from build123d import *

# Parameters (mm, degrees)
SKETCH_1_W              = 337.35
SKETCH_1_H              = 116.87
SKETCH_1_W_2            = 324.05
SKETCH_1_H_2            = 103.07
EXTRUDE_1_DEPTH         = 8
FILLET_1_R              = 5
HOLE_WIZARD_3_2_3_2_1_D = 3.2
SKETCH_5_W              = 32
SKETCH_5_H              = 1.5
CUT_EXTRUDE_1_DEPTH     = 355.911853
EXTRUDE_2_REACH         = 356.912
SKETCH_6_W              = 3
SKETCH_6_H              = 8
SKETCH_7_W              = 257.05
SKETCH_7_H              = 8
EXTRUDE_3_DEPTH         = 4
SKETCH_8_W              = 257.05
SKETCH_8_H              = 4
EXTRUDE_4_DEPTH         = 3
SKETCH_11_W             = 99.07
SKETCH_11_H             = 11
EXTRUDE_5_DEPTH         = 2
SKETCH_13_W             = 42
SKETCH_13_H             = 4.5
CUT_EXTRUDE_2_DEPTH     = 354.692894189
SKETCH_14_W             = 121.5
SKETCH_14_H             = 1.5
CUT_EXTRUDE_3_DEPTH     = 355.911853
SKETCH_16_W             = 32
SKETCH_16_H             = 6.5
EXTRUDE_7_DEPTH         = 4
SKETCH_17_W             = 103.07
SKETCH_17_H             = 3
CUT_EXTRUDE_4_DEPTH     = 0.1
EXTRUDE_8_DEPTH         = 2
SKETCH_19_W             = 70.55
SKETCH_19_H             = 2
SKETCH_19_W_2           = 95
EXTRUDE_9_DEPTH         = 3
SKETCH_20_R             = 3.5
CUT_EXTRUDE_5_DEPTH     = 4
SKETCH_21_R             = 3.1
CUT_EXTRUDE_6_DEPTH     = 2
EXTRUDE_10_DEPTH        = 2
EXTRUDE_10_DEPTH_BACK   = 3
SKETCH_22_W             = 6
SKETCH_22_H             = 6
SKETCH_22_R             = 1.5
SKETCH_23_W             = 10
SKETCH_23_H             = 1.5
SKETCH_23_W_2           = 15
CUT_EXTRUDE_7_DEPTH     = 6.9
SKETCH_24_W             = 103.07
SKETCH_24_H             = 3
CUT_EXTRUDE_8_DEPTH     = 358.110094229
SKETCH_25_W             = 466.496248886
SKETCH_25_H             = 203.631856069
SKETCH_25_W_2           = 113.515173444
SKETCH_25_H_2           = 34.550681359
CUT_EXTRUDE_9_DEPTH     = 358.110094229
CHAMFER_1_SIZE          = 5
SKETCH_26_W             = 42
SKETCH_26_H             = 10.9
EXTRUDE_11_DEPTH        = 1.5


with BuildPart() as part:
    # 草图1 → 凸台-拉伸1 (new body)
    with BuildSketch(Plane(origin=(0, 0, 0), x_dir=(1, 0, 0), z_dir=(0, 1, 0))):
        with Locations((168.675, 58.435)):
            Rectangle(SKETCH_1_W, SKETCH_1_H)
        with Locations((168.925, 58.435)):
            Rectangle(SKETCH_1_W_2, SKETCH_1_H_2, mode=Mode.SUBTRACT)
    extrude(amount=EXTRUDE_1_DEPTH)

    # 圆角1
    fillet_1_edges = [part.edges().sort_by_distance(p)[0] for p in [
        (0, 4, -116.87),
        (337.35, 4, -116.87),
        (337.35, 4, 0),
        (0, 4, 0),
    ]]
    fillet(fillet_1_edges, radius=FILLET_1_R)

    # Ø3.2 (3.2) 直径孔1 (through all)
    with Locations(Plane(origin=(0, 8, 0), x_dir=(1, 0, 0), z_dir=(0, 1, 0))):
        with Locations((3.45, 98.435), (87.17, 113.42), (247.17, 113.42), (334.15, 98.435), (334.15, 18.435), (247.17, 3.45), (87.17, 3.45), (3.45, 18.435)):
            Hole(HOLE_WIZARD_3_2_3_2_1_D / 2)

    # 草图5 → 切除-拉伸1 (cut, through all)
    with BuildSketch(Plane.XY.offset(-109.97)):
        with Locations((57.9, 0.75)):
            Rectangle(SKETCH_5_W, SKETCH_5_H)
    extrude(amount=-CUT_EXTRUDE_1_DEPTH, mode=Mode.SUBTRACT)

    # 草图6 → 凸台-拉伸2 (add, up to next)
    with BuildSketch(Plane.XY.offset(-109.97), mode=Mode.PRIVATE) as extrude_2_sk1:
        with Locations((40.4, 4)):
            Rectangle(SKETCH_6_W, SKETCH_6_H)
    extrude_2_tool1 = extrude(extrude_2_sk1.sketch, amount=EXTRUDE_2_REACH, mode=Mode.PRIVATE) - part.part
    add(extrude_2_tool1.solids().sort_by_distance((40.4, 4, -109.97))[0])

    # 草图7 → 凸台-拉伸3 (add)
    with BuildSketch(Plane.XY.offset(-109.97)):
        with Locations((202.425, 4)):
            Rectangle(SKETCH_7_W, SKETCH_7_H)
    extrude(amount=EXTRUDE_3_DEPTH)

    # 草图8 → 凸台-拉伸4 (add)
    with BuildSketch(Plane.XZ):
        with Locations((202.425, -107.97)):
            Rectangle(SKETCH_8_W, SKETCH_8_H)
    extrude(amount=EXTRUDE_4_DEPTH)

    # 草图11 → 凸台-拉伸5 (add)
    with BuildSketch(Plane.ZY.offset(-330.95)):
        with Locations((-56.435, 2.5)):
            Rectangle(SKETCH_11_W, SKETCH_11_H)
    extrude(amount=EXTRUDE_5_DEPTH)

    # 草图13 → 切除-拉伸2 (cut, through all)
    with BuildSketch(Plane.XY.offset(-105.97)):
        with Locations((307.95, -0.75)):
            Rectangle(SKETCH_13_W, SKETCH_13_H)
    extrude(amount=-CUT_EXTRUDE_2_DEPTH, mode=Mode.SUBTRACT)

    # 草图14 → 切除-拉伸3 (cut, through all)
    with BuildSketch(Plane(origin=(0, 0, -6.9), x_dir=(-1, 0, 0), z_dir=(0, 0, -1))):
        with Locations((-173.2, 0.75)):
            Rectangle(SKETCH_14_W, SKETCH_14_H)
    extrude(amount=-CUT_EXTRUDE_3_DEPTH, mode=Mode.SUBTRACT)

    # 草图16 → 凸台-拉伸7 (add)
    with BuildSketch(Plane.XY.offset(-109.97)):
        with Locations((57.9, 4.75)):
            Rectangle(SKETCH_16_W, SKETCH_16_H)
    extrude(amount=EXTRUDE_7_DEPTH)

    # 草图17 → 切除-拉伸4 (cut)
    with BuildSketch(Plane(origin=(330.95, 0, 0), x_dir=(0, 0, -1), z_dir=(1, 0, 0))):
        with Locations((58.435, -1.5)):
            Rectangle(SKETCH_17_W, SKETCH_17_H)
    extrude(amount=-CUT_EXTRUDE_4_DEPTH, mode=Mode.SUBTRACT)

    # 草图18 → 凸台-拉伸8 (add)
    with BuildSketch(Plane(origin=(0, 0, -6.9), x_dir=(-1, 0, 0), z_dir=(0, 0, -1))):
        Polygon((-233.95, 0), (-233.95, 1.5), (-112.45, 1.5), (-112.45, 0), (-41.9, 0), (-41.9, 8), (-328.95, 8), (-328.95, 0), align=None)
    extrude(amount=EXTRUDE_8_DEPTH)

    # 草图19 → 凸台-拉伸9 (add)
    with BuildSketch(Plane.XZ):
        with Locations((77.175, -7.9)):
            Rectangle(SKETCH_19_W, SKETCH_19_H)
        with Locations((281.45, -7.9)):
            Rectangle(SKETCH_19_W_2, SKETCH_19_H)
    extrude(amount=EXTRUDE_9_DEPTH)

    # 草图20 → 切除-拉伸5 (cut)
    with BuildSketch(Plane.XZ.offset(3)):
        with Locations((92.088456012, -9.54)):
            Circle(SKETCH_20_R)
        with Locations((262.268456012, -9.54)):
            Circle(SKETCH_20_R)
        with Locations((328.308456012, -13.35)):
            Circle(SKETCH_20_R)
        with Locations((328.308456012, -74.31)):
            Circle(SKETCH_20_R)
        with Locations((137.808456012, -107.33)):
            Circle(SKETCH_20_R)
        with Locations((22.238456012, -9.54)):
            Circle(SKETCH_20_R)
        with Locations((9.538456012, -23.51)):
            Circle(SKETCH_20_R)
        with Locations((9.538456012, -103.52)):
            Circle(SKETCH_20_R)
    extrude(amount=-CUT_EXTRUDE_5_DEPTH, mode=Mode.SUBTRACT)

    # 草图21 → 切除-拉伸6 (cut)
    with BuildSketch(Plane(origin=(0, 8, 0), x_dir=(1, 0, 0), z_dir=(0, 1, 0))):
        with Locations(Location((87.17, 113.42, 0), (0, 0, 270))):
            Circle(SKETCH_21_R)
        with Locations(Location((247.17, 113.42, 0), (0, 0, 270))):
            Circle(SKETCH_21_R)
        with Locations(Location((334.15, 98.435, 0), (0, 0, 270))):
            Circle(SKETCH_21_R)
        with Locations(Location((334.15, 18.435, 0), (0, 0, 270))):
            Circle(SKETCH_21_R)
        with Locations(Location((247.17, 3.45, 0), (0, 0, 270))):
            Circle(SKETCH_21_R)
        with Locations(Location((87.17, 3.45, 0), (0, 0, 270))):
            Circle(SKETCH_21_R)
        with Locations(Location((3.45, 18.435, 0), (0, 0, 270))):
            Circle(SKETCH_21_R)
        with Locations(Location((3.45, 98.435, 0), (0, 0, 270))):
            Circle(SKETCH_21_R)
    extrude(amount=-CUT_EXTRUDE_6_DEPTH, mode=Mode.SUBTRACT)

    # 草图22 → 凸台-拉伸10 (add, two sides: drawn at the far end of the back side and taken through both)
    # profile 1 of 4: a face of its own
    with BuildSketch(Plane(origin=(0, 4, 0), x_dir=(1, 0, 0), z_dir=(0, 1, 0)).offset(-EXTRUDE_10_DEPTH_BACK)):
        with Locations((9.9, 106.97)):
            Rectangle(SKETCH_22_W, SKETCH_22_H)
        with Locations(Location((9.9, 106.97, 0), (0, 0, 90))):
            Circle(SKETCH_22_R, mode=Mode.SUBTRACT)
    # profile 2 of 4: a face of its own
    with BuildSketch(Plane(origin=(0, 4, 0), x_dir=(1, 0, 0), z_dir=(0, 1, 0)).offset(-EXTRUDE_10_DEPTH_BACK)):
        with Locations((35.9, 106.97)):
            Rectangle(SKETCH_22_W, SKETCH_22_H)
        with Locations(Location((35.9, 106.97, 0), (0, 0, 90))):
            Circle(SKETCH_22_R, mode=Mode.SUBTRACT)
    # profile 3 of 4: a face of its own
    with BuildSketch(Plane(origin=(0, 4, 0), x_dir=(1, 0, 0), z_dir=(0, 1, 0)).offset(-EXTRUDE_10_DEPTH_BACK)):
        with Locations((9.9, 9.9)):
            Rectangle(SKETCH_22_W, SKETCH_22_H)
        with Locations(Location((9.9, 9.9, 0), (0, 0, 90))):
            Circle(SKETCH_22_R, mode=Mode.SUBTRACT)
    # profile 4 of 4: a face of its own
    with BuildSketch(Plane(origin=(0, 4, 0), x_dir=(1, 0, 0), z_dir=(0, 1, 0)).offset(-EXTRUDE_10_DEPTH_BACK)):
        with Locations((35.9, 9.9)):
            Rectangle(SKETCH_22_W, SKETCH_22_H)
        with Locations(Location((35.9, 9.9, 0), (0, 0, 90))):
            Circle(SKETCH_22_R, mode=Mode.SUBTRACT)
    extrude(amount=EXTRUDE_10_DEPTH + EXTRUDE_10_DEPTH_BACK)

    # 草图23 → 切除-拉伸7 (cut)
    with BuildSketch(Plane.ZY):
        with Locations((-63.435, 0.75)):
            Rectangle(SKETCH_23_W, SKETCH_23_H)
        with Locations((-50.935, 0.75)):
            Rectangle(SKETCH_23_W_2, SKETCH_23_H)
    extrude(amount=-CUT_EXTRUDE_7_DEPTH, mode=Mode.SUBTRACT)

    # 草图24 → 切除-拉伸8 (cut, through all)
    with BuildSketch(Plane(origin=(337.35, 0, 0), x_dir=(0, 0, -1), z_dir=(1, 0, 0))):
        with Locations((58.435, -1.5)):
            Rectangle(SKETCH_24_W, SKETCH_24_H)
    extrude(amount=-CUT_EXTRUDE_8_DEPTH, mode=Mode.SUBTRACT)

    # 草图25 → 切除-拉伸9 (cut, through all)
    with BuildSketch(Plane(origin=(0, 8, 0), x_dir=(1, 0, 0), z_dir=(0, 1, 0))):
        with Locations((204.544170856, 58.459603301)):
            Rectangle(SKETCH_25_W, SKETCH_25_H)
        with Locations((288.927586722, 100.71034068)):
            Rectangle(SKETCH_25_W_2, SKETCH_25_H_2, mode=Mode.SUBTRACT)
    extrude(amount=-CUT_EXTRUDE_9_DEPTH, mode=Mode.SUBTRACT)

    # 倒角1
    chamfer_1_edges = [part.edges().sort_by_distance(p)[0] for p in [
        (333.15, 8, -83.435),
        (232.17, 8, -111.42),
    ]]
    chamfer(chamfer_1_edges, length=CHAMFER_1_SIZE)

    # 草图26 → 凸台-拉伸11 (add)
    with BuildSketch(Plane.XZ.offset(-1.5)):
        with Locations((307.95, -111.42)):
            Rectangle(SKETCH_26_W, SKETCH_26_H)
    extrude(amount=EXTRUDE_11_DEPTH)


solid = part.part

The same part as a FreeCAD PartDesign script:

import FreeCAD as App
import Part
import Sketcher


def edges_at(feature, points):
    """Names of the edges that pass closest to the given points."""
    edges = feature.Shape.Edges
    near = lambda p: min(range(len(edges)), key=lambda i: edges[i].distToShape(Part.Vertex(*p))[0])
    return sorted({f"Edge{near(p) + 1}" for p in points})


def add_polygon(sketch, points):
    """Adds a closed chain of lines whose ends are joined by coincident constraints."""
    first, n = sketch.GeometryCount, len(points)
    for a, b in zip(points, points[1:] + points[:1]):
        sketch.addGeometry(Part.LineSegment(App.Vector(*a, 0), App.Vector(*b, 0)), False)
    for i in range(n):
        sketch.addConstraint(Sketcher.Constraint("Coincident", first + i, 2, first + (i + 1) % n, 1))

doc = App.newDocument("Part")
body = doc.addObject("PartDesign::Body", "Body")

# Sketch on XZ plane
sketch1 = body.newObject("Sketcher::SketchObject", "Sketch")
sketch1.AttachmentSupport = (doc.getObject("XZ_Plane"), [""])
sketch1.MapMode = "FlatFace"
add_polygon(sketch1, [(0, -117), (0, 0), (337, 0), (337, -117)])  # lines 0-3
add_polygon(sketch1, [(331, -7), (7, -7), (7, -110), (331, -110)])  # lines 4-7
sketch1.addConstraint([
    Sketcher.Constraint("Vertical", 0),
    Sketcher.Constraint("Horizontal", 1),
    Sketcher.Constraint("Vertical", 2),
    Sketcher.Constraint("Horizontal", 3),
    Sketcher.Constraint("Horizontal", 4),
    Sketcher.Constraint("Vertical", 5),
    Sketcher.Constraint("Horizontal", 6),
    Sketcher.Constraint("Vertical", 7),
    Sketcher.Constraint("Coincident", 0, 2, -1, 1),
    Sketcher.Constraint("DistanceX", 1, 1, 1, 2, 337.35),
    Sketcher.Constraint("DistanceX", 4, 2, 4, 1, 324.05),
    Sketcher.Constraint("DistanceY", 0, 1, 0, 2, 116.87),
    Sketcher.Constraint("DistanceY", 5, 2, 5, 1, 103.07),
    Sketcher.Constraint("DistanceX", -1, 1, 4, 2, 6.9),
    Sketcher.Constraint("DistanceY", 4, 2, -1, 1, 6.9),
])
pad1 = body.newObject("PartDesign::Pad", "Pad")
pad1.Profile = sketch1
pad1.Length = 8
pad1.Reversed = True
doc.recompute()

fillet = body.newObject("PartDesign::Fillet", "Fillet")
fillet.Base = (pad1, edges_at(pad1, [
    (0, 4, -116.87),
    (337.35, 4, -116.87),
    (337.35, 4, 0),
    (0, 4, 0),
]))
fillet.Radius = 5

# Sketch on XZ plane
sketch2 = body.newObject("Sketcher::SketchObject", "Sketch001")
sketch2.AttachmentSupport = (doc.getObject("XZ_Plane"), [""])
sketch2.MapMode = "FlatFace"
sketch2.AttachmentOffset = App.Placement(App.Vector(0, 0, -8), App.Rotation())
sketch2.addGeometry([
    Part.Circle(App.Vector(3.5, -98.4, 0), App.Vector(0, 0, 1), 1.6),  # 0
    Part.Circle(App.Vector(87.2, -113.4, 0), App.Vector(0, 0, 1), 1.6),  # 1
    Part.Circle(App.Vector(247.2, -113.4, 0), App.Vector(0, 0, 1), 1.6),  # 2
    Part.Circle(App.Vector(334.1, -98.4, 0), App.Vector(0, 0, 1), 1.6),  # 3
    Part.Circle(App.Vector(334.1, -18.4, 0), App.Vector(0, 0, 1), 1.6),  # 4
    Part.Circle(App.Vector(247.2, -3.5, 0), App.Vector(0, 0, 1), 1.6),  # 5
    Part.Circle(App.Vector(87.2, -3.5, 0), App.Vector(0, 0, 1), 1.6),  # 6
    Part.Circle(App.Vector(3.5, -18.4, 0), App.Vector(0, 0, 1), 1.6),  # 7
], False)
sketch2.addConstraint([
    Sketcher.Constraint("Equal", 0, 1),
    Sketcher.Constraint("Equal", 1, 2),
    Sketcher.Constraint("Equal", 2, 3),
    Sketcher.Constraint("Equal", 3, 4),
    Sketcher.Constraint("Equal", 4, 5),
    Sketcher.Constraint("Equal", 5, 6),
    Sketcher.Constraint("Equal", 6, 7),
    Sketcher.Constraint("Horizontal", 1, 3, 2, 3),
    Sketcher.Constraint("Horizontal", 0, 3, 3, 3),
    Sketcher.Constraint("Horizontal", 5, 3, 6, 3),
    Sketcher.Constraint("Horizontal", 4, 3, 7, 3),
    Sketcher.Constraint("Vertical", 3, 3, 4, 3),
    Sketcher.Constraint("Vertical", 2, 3, 5, 3),
    Sketcher.Constraint("Vertical", 1, 3, 6, 3),
    Sketcher.Constraint("Vertical", 0, 3, 7, 3),
    Sketcher.Constraint("Diameter", 0, 3.2),
    Sketcher.Constraint("DistanceX", 1, 3, 2, 3, 160.0),
    Sketcher.Constraint("DistanceY", 3, 3, 4, 3, 80.0),
    Sketcher.Constraint("DistanceX", 0, 3, 3, 3, 330.7),
    Sketcher.Constraint("DistanceX", -1, 1, 0, 3, 3.45),
    Sketcher.Constraint("DistanceX", -1, 1, 1, 3, 87.17),
    Sketcher.Constraint("DistanceY", 1, 3, -1, 1, 113.42),
    Sketcher.Constraint("DistanceY", 5, 3, -1, 1, 3.45),
    Sketcher.Constraint("DistanceY", 0, 3, -1, 1, 98.435),
])
doc.recompute()
hole = body.newObject("PartDesign::Hole", "Hole")
hole.Profile = sketch2
hole.ThreadType = "None"
hole.Diameter = 3.2
hole.DepthType = "ThroughAll"
hole.Reversed = True

# Sketch on XY plane
sketch3 = body.newObject("Sketcher::SketchObject", "Sketch002")
sketch3.AttachmentSupport = (doc.getObject("XY_Plane"), [""])
sketch3.MapMode = "FlatFace"
sketch3.AttachmentOffset = App.Placement(App.Vector(0, 0, -109.97), App.Rotation())
add_polygon(sketch3, [(41.9, 1.5), (41.9, 0), (73.9, 0), (73.9, 1.5)])  # lines 0-3
sketch3.addConstraint([
    Sketcher.Constraint("Vertical", 0),
    Sketcher.Constraint("Horizontal", 1),
    Sketcher.Constraint("Vertical", 2),
    Sketcher.Constraint("Horizontal", 3),
    Sketcher.Constraint("PointOnObject", 0, 2, -1),
    Sketcher.Constraint("DistanceX", 1, 1, 1, 2, 32.0),
    Sketcher.Constraint("DistanceY", 0, 2, 0, 1, 1.5),
    Sketcher.Constraint("DistanceX", -1, 1, 0, 2, 41.9),
])
pocket1 = body.newObject("PartDesign::Pocket", "Pocket")
pocket1.Profile = sketch3
pocket1.Type = "ThroughAll"

# Sketch on XY plane
sketch4 = body.newObject("Sketcher::SketchObject", "Sketch003")
sketch4.AttachmentSupport = (doc.getObject("XY_Plane"), [""])
sketch4.MapMode = "FlatFace"
sketch4.AttachmentOffset = App.Placement(App.Vector(0, 0, -109.97), App.Rotation())
add_polygon(sketch4, [(38.9, 8), (38.9, 0), (41.9, 0), (41.9, 8)])  # lines 0-3
sketch4.addConstraint([
    Sketcher.Constraint("Vertical", 0),
    Sketcher.Constraint("Horizontal", 1),
    Sketcher.Constraint("Vertical", 2),
    Sketcher.Constraint("Horizontal", 3),
    Sketcher.Constraint("PointOnObject", 0, 2, -1),
    Sketcher.Constraint("DistanceX", 1, 1, 1, 2, 3.0),
    Sketcher.Constraint("DistanceY", 0, 2, 0, 1, 8.0),
    Sketcher.Constraint("DistanceX", -1, 1, 0, 2, 38.9),
])
pad2 = body.newObject("PartDesign::Pad", "Pad001")
pad2.Profile = sketch4
pad2.Type = "UpToFirst"

# Sketch on XY plane
sketch5 = body.newObject("Sketcher::SketchObject", "Sketch004")
sketch5.AttachmentSupport = (doc.getObject("XY_Plane"), [""])
sketch5.MapMode = "FlatFace"
sketch5.AttachmentOffset = App.Placement(App.Vector(0, 0, -109.97), App.Rotation())
add_polygon(sketch5, [(74, 8), (74, 0), (331, 0), (331, 8)])  # lines 0-3
sketch5.addConstraint([
    Sketcher.Constraint("Vertical", 0),
    Sketcher.Constraint("Horizontal", 1),
    Sketcher.Constraint("Vertical", 2),
    Sketcher.Constraint("Horizontal", 3),
    Sketcher.Constraint("PointOnObject", 0, 2, -1),
    Sketcher.Constraint("DistanceY", 0, 2, 0, 1, 8.0),
    Sketcher.Constraint("DistanceX", 1, 1, 1, 2, 257.05),
    Sketcher.Constraint("DistanceX", -1, 1, 0, 2, 73.9),
])
pad3 = body.newObject("PartDesign::Pad", "Pad002")
pad3.Profile = sketch5
pad3.Length = 4

# Sketch on XZ plane
sketch6 = body.newObject("Sketcher::SketchObject", "Sketch005")
sketch6.AttachmentSupport = (doc.getObject("XZ_Plane"), [""])
sketch6.MapMode = "FlatFace"
add_polygon(sketch6, [(73.9, -106), (73.9, -110), (330.9, -110), (330.9, -106)])  # lines 0-3
sketch6.addConstraint([
    Sketcher.Constraint("Vertical", 0),
    Sketcher.Constraint("Horizontal", 1),
    Sketcher.Constraint("Vertical", 2),
    Sketcher.Constraint("Horizontal", 3),
    Sketcher.Constraint("DistanceY", 0, 2, 0, 1, 4.0),
    Sketcher.Constraint("DistanceX", 1, 1, 1, 2, 257.05),
    Sketcher.Constraint("DistanceX", -1, 1, 0, 2, 73.9),
    Sketcher.Constraint("DistanceY", 0, 2, -1, 1, 109.97),
])
pad4 = body.newObject("PartDesign::Pad", "Pad003")
pad4.Profile = sketch6
pad4.Length = 3

# Sketch on YZ plane
sketch7 = body.newObject("Sketcher::SketchObject", "Sketch006")
sketch7.AttachmentSupport = (doc.getObject("YZ_Plane"), [""])
sketch7.MapMode = "FlatFace"
sketch7.AttachmentOffset = App.Placement(App.Vector(0, 0, 330.95), App.Rotation())
add_polygon(sketch7, [(8, -106), (-3, -106), (-3, -7), (8, -7)])  # lines 0-3
sketch7.addConstraint([
    Sketcher.Constraint("Horizontal", 0),
    Sketcher.Constraint("Vertical", 1),
    Sketcher.Constraint("Horizontal", 2),
    Sketcher.Constraint("Vertical", 3),
    Sketcher.Constraint("DistanceX", 0, 2, 0, 1, 11.0),
    Sketcher.Constraint("DistanceX", 0, 2, -1, 1, 3.0),
    Sketcher.Constraint("DistanceY", 1, 1, 1, 2, 99.07),
    Sketcher.Constraint("DistanceY", 1, 2, -1, 1, 6.9),
])
pad5 = body.newObject("PartDesign::Pad", "Pad004")
pad5.Profile = sketch7
pad5.Length = 2
pad5.Reversed = True

# Sketch on XY plane
sketch8 = body.newObject("Sketcher::SketchObject", "Sketch007")
sketch8.AttachmentSupport = (doc.getObject("XY_Plane"), [""])
sketch8.MapMode = "FlatFace"
sketch8.AttachmentOffset = App.Placement(App.Vector(0, 0, -105.97), App.Rotation())
add_polygon(sketch8, [(286.9, 1.5), (286.9, -3), (328.9, -3), (328.9, 1.5)])  # lines 0-3
sketch8.addConstraint([
    Sketcher.Constraint("Vertical", 0),
    Sketcher.Constraint("Horizontal", 1),
    Sketcher.Constraint("Vertical", 2),
    Sketcher.Constraint("Horizontal", 3),
    Sketcher.Constraint("DistanceX", 1, 1, 1, 2, 42.0),
    Sketcher.Constraint("DistanceY", 0, 2, 0, 1, 4.5),
    Sketcher.Constraint("DistanceY", 0, 2, -1, 1, 3.0),
    Sketcher.Constraint("DistanceX", -1, 1, 0, 2, 286.95),
])
pocket2 = body.newObject("PartDesign::Pocket", "Pocket001")
pocket2.Profile = sketch8
pocket2.Type = "ThroughAll"

# Sketch on XY plane
sketch9 = body.newObject("Sketcher::SketchObject", "Sketch008")
sketch9.AttachmentSupport = (doc.getObject("XY_Plane"), [""])
sketch9.MapMode = "FlatFace"
sketch9.AttachmentOffset = App.Placement(App.Vector(0, 0, -6.9), App.Rotation())
add_polygon(sketch9, [(233.9, 1.5), (233.9, 0), (112.5, 0), (112.5, 1.5)])  # lines 0-3
sketch9.addConstraint([
    Sketcher.Constraint("Vertical", 0),
    Sketcher.Constraint("Horizontal", 1),
    Sketcher.Constraint("Vertical", 2),
    Sketcher.Constraint("Horizontal", 3),
    Sketcher.Constraint("PointOnObject", 0, 2, -1),
    Sketcher.Constraint("DistanceX", 1, 2, 1, 1, 121.5),
    Sketcher.Constraint("DistanceY", 0, 2, 0, 1, 1.5),
    Sketcher.Constraint("DistanceX", -1, 1, 0, 2, 233.95),
])
pocket3 = body.newObject("PartDesign::Pocket", "Pocket002")
pocket3.Profile = sketch9
pocket3.Type = "ThroughAll"
pocket3.Reversed = True

# Sketch on XY plane
sketch10 = body.newObject("Sketcher::SketchObject", "Sketch009")
sketch10.AttachmentSupport = (doc.getObject("XY_Plane"), [""])
sketch10.MapMode = "FlatFace"
sketch10.AttachmentOffset = App.Placement(App.Vector(0, 0, -109.97), App.Rotation())
add_polygon(sketch10, [(42, 8), (42, 2), (74, 2), (74, 8)])  # lines 0-3
sketch10.addConstraint([
    Sketcher.Constraint("Vertical", 0),
    Sketcher.Constraint("Horizontal", 1),
    Sketcher.Constraint("Vertical", 2),
    Sketcher.Constraint("Horizontal", 3),
    Sketcher.Constraint("DistanceX", 1, 1, 1, 2, 32.0),
    Sketcher.Constraint("DistanceY", 0, 2, 0, 1, 6.5),
    Sketcher.Constraint("DistanceY", -1, 1, 2, 2, 8.0),
    Sketcher.Constraint("DistanceX", -1, 1, 0, 2, 41.9),
])
pad6 = body.newObject("PartDesign::Pad", "Pad005")
pad6.Profile = sketch10
pad6.Length = 4

# Sketch on YZ plane
sketch11 = body.newObject("Sketcher::SketchObject", "Sketch010")
sketch11.AttachmentSupport = (doc.getObject("YZ_Plane"), [""])
sketch11.MapMode = "FlatFace"
sketch11.AttachmentOffset = App.Placement(App.Vector(0, 0, 330.95), App.Rotation())
add_polygon(sketch11, [(0, -6.9), (-3, -6.9), (-3, -110), (0, -110)])  # lines 0-3
sketch11.addConstraint([
    Sketcher.Constraint("Horizontal", 0),
    Sketcher.Constraint("Vertical", 1),
    Sketcher.Constraint("Horizontal", 2),
    Sketcher.Constraint("Vertical", 3),
    Sketcher.Constraint("PointOnObject", 2, 2, -2),
    Sketcher.Constraint("DistanceX", 0, 2, 0, 1, 3.0),
    Sketcher.Constraint("DistanceY", 1, 2, 1, 1, 103.07),
    Sketcher.Constraint("DistanceY", 0, 2, -1, 1, 6.9),
])
pocket4 = body.newObject("PartDesign::Pocket", "Pocket003")
pocket4.Profile = sketch11
pocket4.Length = 0.1

# Sketch on XY plane
sketch12 = body.newObject("Sketcher::SketchObject", "Sketch011")
sketch12.AttachmentSupport = (doc.getObject("XY_Plane"), [""])
sketch12.MapMode = "FlatFace"
sketch12.AttachmentOffset = App.Placement(App.Vector(0, 0, -6.9), App.Rotation())
add_polygon(sketch12, [(233.9, 0), (233.9, 1.5), (112.5, 1.5), (112.5, 0), (41.9, 0), (41.9, 8), (328.9, 8), (328.9, 0)])  # lines 0-7
sketch12.addConstraint([
    Sketcher.Constraint("Vertical", 0),
    Sketcher.Constraint("Horizontal", 1),
    Sketcher.Constraint("Vertical", 2),
    Sketcher.Constraint("Horizontal", 3),
    Sketcher.Constraint("Vertical", 4),
    Sketcher.Constraint("Horizontal", 5),
    Sketcher.Constraint("Vertical", 6),
    Sketcher.Constraint("Horizontal", 7),
    Sketcher.Constraint("PointOnObject", 2, 2, -1),
    Sketcher.Constraint("PointOnObject", 6, 2, -1),
    Sketcher.Constraint("DistanceX", 7, 2, 7, 1, 95.0),
    Sketcher.Constraint("DistanceY", 4, 1, 4, 2, 8.0),
    Sketcher.Constraint("DistanceX", 1, 2, 1, 1, 121.5),
    Sketcher.Constraint("DistanceY", 0, 1, 0, 2, 1.5),
    Sketcher.Constraint("DistanceX", 3, 2, 3, 1, 70.55),
    Sketcher.Constraint("DistanceX", -1, 1, 3, 2, 41.9),
])
pad7 = body.newObject("PartDesign::Pad", "Pad006")
pad7.Profile = sketch12
pad7.Length = 2
pad7.Reversed = True

# Sketch on XZ plane
sketch13 = body.newObject("Sketcher::SketchObject", "Sketch012")
sketch13.AttachmentSupport = (doc.getObject("XZ_Plane"), [""])
sketch13.MapMode = "FlatFace"
add_polygon(sketch13, [(41.9, -6.9), (41.9, -8.9), (112.5, -8.9), (112.5, -6.9)])  # lines 0-3
add_polygon(sketch13, [(233.9, -6.9), (233.9, -8.9), (328.9, -8.9), (328.9, -6.9)])  # lines 4-7
sketch13.addConstraint([
    Sketcher.Constraint("Vertical", 0),
    Sketcher.Constraint("Horizontal", 1),
    Sketcher.Constraint("Vertical", 2),
    Sketcher.Constraint("Horizontal", 3),
    Sketcher.Constraint("Vertical", 4),
    Sketcher.Constraint("Horizontal", 5),
    Sketcher.Constraint("Vertical", 6),
    Sketcher.Constraint("Horizontal", 7),
    Sketcher.Constraint("Horizontal", 1, 2, 4, 2),
    Sketcher.Constraint("Horizontal", 3, 2, 6, 2),
    Sketcher.Constraint("DistanceX", 5, 1, 5, 2, 95.0),
    Sketcher.Constraint("DistanceY", 0, 2, 0, 1, 2.0),
    Sketcher.Constraint("DistanceX", 1, 1, 1, 2, 70.55),
    Sketcher.Constraint("DistanceX", -1, 1, 0, 2, 41.9),
    Sketcher.Constraint("DistanceY", 0, 2, -1, 1, 8.9),
    Sketcher.Constraint("DistanceX", 1, 2, 4, 2, 121.5),
])
pad8 = body.newObject("PartDesign::Pad", "Pad007")
pad8.Profile = sketch13
pad8.Length = 3

# Sketch on XZ plane
sketch14 = body.newObject("Sketcher::SketchObject", "Sketch013")
sketch14.AttachmentSupport = (doc.getObject("XZ_Plane"), [""])
sketch14.MapMode = "FlatFace"
sketch14.AttachmentOffset = App.Placement(App.Vector(0, 0, 3), App.Rotation())
sketch14.addGeometry([
    Part.Circle(App.Vector(92.1, -9.5, 0), App.Vector(0, 0, 1), 3.5),  # 0
    Part.Circle(App.Vector(262.3, -9.5, 0), App.Vector(0, 0, 1), 3.5),  # 1
    Part.Circle(App.Vector(328.3, -13.3, 0), App.Vector(0, 0, 1), 3.5),  # 2
    Part.Circle(App.Vector(328.3, -74.3, 0), App.Vector(0, 0, 1), 3.5),  # 3
    Part.Circle(App.Vector(137.8, -107.3, 0), App.Vector(0, 0, 1), 3.5),  # 4
    Part.Circle(App.Vector(22.2, -9.5, 0), App.Vector(0, 0, 1), 3.5),  # 5
    Part.Circle(App.Vector(9.5, -23.5, 0), App.Vector(0, 0, 1), 3.5),  # 6
    Part.Circle(App.Vector(9.5, -103.5, 0), App.Vector(0, 0, 1), 3.5),  # 7
], False)
sketch14.addConstraint([
    Sketcher.Constraint("Equal", 0, 1),
    Sketcher.Constraint("Equal", 1, 2),
    Sketcher.Constraint("Equal", 2, 3),
    Sketcher.Constraint("Equal", 3, 4),
    Sketcher.Constraint("Equal", 4, 5),
    Sketcher.Constraint("Equal", 5, 6),
    Sketcher.Constraint("Equal", 6, 7),
    Sketcher.Constraint("Horizontal", 0, 3, 1, 3),
    Sketcher.Constraint("Horizontal", 1, 3, 5, 3),
    Sketcher.Constraint("Vertical", 2, 3, 3, 3),
    Sketcher.Constraint("Vertical", 6, 3, 7, 3),
    Sketcher.Constraint("Diameter", 0, 7.0),
    Sketcher.Constraint("DistanceX", 4, 3, 3, 3, 190.5),
    Sketcher.Constraint("DistanceX", 6, 3, 5, 3, 12.7),
    Sketcher.Constraint("DistanceY", 0, 3, -1, 1, 9.54),
    Sketcher.Constraint("DistanceY", 2, 3, -1, 1, 13.35),
    Sketcher.Constraint("DistanceY", 3, 3, -1, 1, 74.31),
    Sketcher.Constraint("DistanceY", 4, 3, -1, 1, 107.33),
    Sketcher.Constraint("DistanceY", 6, 3, -1, 1, 23.51),
    Sketcher.Constraint("DistanceY", 7, 3, -1, 1, 103.52),
    Sketcher.Constraint("DistanceX", 0, 3, 1, 3, 170.18),
    Sketcher.Constraint("DistanceX", 1, 3, 2, 3, 66.04),
    Sketcher.Constraint("DistanceX", 5, 3, 0, 3, 69.85),
    Sketcher.Constraint("DistanceX", -1, 1, 0, 3, 92.088456),
])
pocket5 = body.newObject("PartDesign::Pocket", "Pocket004")
pocket5.Profile = sketch14
pocket5.Length = 4

# Sketch on XZ plane
sketch15 = body.newObject("Sketcher::SketchObject", "Sketch014")
sketch15.AttachmentSupport = (doc.getObject("XZ_Plane"), [""])
sketch15.MapMode = "FlatFace"
sketch15.AttachmentOffset = App.Placement(App.Vector(0, 0, -8), App.Rotation())
sketch15.addGeometry([
    Part.Circle(App.Vector(87.2, -113.4, 0), App.Vector(0, 0, 1), 3.1),  # 0
    Part.Circle(App.Vector(247.2, -113.4, 0), App.Vector(0, 0, 1), 3.1),  # 1
    Part.Circle(App.Vector(334.1, -98.4, 0), App.Vector(0, 0, 1), 3.1),  # 2
    Part.Circle(App.Vector(334.1, -18.4, 0), App.Vector(0, 0, 1), 3.1),  # 3
    Part.Circle(App.Vector(247.2, -3.5, 0), App.Vector(0, 0, 1), 3.1),  # 4
    Part.Circle(App.Vector(87.2, -3.5, 0), App.Vector(0, 0, 1), 3.1),  # 5
    Part.Circle(App.Vector(3.5, -18.4, 0), App.Vector(0, 0, 1), 3.1),  # 6
    Part.Circle(App.Vector(3.5, -98.4, 0), App.Vector(0, 0, 1), 3.1),  # 7
], False)
sketch15.addConstraint([
    Sketcher.Constraint("Equal", 0, 1),
    Sketcher.Constraint("Equal", 1, 2),
    Sketcher.Constraint("Equal", 2, 3),
    Sketcher.Constraint("Equal", 3, 4),
    Sketcher.Constraint("Equal", 4, 5),
    Sketcher.Constraint("Equal", 5, 6),
    Sketcher.Constraint("Equal", 6, 7),
    Sketcher.Constraint("Horizontal", 0, 3, 1, 3),
    Sketcher.Constraint("Horizontal", 4, 3, 5, 3),
    Sketcher.Constraint("Horizontal", 3, 3, 6, 3),
    Sketcher.Constraint("Horizontal", 2, 3, 7, 3),
    Sketcher.Constraint("Vertical", 2, 3, 3, 3),
    Sketcher.Constraint("Vertical", 1, 3, 4, 3),
    Sketcher.Constraint("Vertical", 0, 3, 5, 3),
    Sketcher.Constraint("Vertical", 6, 3, 7, 3),
    Sketcher.Constraint("Diameter", 0, 6.2),
    Sketcher.Constraint("DistanceX", 0, 3, 1, 3, 160.0),
    Sketcher.Constraint("DistanceY", 2, 3, 3, 3, 80.0),
    Sketcher.Constraint("DistanceX", 6, 3, 3, 3, 330.7),
    Sketcher.Constraint("DistanceX", -1, 1, 0, 3, 87.17),
    Sketcher.Constraint("DistanceY", 0, 3, -1, 1, 113.42),
    Sketcher.Constraint("DistanceX", -1, 1, 2, 3, 334.15),
    Sketcher.Constraint("DistanceY", 4, 3, -1, 1, 3.45),
    Sketcher.Constraint("DistanceY", 2, 3, -1, 1, 98.435),
])
pocket6 = body.newObject("PartDesign::Pocket", "Pocket005")
pocket6.Profile = sketch15
pocket6.Length = 2
pocket6.Reversed = True

# Sketch on XZ plane
sketch16 = body.newObject("Sketcher::SketchObject", "Sketch015")
sketch16.AttachmentSupport = (doc.getObject("XZ_Plane"), [""])
sketch16.MapMode = "FlatFace"
sketch16.AttachmentOffset = App.Placement(App.Vector(0, 0, -4), App.Rotation())
add_polygon(sketch16, [(6.9, -110), (6.9, -104), (12.9, -104), (12.9, -110)])  # lines 0-3
sketch16.addGeometry(Part.Circle(App.Vector(9.9, -107, 0), App.Vector(0, 0, 1), 1.5), False)  # 4
add_polygon(sketch16, [(32.9, -110), (32.9, -104), (38.9, -104), (38.9, -110)])  # lines 5-8
sketch16.addGeometry(Part.Circle(App.Vector(35.9, -107, 0), App.Vector(0, 0, 1), 1.5), False)  # 9
add_polygon(sketch16, [(6.9, -12.9), (6.9, -6.9), (12.9, -6.9), (12.9, -12.9)])  # lines 10-13
sketch16.addGeometry(Part.Circle(App.Vector(9.9, -9.9, 0), App.Vector(0, 0, 1), 1.5), False)  # 14
add_polygon(sketch16, [(32.9, -12.9), (32.9, -6.9), (38.9, -6.9), (38.9, -12.9)])  # lines 15-18
sketch16.addGeometry(Part.Circle(App.Vector(35.9, -9.9, 0), App.Vector(0, 0, 1), 1.5), False)  # 19
sketch16.addConstraint([
    Sketcher.Constraint("Vertical", 0),
    Sketcher.Constraint("Horizontal", 1),
    Sketcher.Constraint("Vertical", 2),
    Sketcher.Constraint("Horizontal", 3),
    Sketcher.Constraint("Vertical", 5),
    Sketcher.Constraint("Horizontal", 6),
    Sketcher.Constraint("Vertical", 7),
    Sketcher.Constraint("Horizontal", 8),
    Sketcher.Constraint("Vertical", 10),
    Sketcher.Constraint("Horizontal", 11),
    Sketcher.Constraint("Vertical", 12),
    Sketcher.Constraint("Horizontal", 13),
    Sketcher.Constraint("Vertical", 15),
    Sketcher.Constraint("Horizontal", 16),
    Sketcher.Constraint("Vertical", 17),
    Sketcher.Constraint("Horizontal", 18),
    Sketcher.Constraint("Equal", 4, 9),
    Sketcher.Constraint("Equal", 9, 14),
    Sketcher.Constraint("Equal", 14, 19),
    Sketcher.Constraint("Horizontal", 4, 3, 9, 3),
    Sketcher.Constraint("Horizontal", 14, 3, 19, 3),
    Sketcher.Constraint("Horizontal", 1, 2, 5, 2),
    Sketcher.Constraint("Horizontal", 3, 2, 7, 2),
    Sketcher.Constraint("Horizontal", 11, 2, 15, 2),
    Sketcher.Constraint("Horizontal", 13, 2, 17, 2),
    Sketcher.Constraint("Vertical", 4, 3, 14, 3),
    Sketcher.Constraint("Vertical", 9, 3, 19, 3),
    Sketcher.Constraint("Vertical", 3, 2, 10, 2),
    Sketcher.Constraint("Vertical", 2, 2, 11, 2),
    Sketcher.Constraint("Vertical", 8, 2, 15, 2),
    Sketcher.Constraint("Vertical", 7, 2, 16, 2),
    Sketcher.Constraint("Equal", 3, 6),
    Sketcher.Constraint("Equal", 18, 0),
    Sketcher.Constraint("Equal", 7, 10),
    Sketcher.Constraint("Diameter", 4, 3.0),
    Sketcher.Constraint("DistanceX", 1, 1, 1, 2, 6.0),
    Sketcher.Constraint("DistanceX", 4, 3, 9, 3, 26.0),
    Sketcher.Constraint("DistanceX", 0, 2, 4, 3, 3.0),
    Sketcher.Constraint("DistanceY", 4, 3, 0, 2, 3.0),
    Sketcher.Constraint("DistanceX", 5, 2, 9, 3, 3.0),
    Sketcher.Constraint("DistanceY", 14, 3, 10, 2, 3.0),
    Sketcher.Constraint("DistanceX", -1, 1, 4, 3, 9.9),
    Sketcher.Constraint("DistanceY", 14, 3, -1, 1, 9.9),
    Sketcher.Constraint("DistanceY", 4, 3, -1, 1, 106.97),
])
pad9 = body.newObject("PartDesign::Pad", "Pad008")
pad9.Profile = sketch16
pad9.Type = "TwoLengths"
pad9.Length = 2
pad9.Length2 = 3
pad9.Reversed = True

# Sketch on YZ plane
sketch17 = body.newObject("Sketcher::SketchObject", "Sketch016")
sketch17.AttachmentSupport = (doc.getObject("YZ_Plane"), [""])
sketch17.MapMode = "FlatFace"
add_polygon(sketch17, [(1.5, -68.4), (0, -68.4), (0, -43.4), (1.5, -43.4)])  # lines 0-3
sketch17.addConstraint([
    Sketcher.Constraint("Horizontal", 0),
    Sketcher.Constraint("Vertical", 1),
    Sketcher.Constraint("Horizontal", 2),
    Sketcher.Constraint("Vertical", 3),
    Sketcher.Constraint("PointOnObject", 0, 2, -2),
    Sketcher.Constraint("DistanceY", 1, 1, 1, 2, 25.0),
    Sketcher.Constraint("DistanceX", 0, 2, 0, 1, 1.5),
    Sketcher.Constraint("DistanceY", 0, 2, -1, 1, 68.435),
])
pocket7 = body.newObject("PartDesign::Pocket", "Pocket006")
pocket7.Profile = sketch17
pocket7.Length = 6.9
pocket7.Reversed = True

# Sketch on YZ plane
sketch18 = body.newObject("Sketcher::SketchObject", "Sketch017")
sketch18.AttachmentSupport = (doc.getObject("YZ_Plane"), [""])
sketch18.MapMode = "FlatFace"
sketch18.AttachmentOffset = App.Placement(App.Vector(0, 0, 337.35), App.Rotation())
add_polygon(sketch18, [(0, -6.9), (-3, -6.9), (-3, -110), (0, -110)])  # lines 0-3
sketch18.addConstraint([
    Sketcher.Constraint("Horizontal", 0),
    Sketcher.Constraint("Vertical", 1),
    Sketcher.Constraint("Horizontal", 2),
    Sketcher.Constraint("Vertical", 3),
    Sketcher.Constraint("PointOnObject", 2, 2, -2),
    Sketcher.Constraint("DistanceX", 0, 2, 0, 1, 3.0),
    Sketcher.Constraint("DistanceY", 1, 2, 1, 1, 103.07),
    Sketcher.Constraint("DistanceY", 0, 2, -1, 1, 6.9),
])
pocket8 = body.newObject("PartDesign::Pocket", "Pocket007")
pocket8.Profile = sketch18
pocket8.Type = "ThroughAll"

# Sketch on XZ plane
sketch19 = body.newObject("Sketcher::SketchObject", "Sketch018")
sketch19.AttachmentSupport = (doc.getObject("XZ_Plane"), [""])
sketch19.MapMode = "FlatFace"
sketch19.AttachmentOffset = App.Placement(App.Vector(0, 0, -8), App.Rotation())
add_polygon(sketch19, [(-29, -160), (-29, 43), (438, 43), (438, -160)])  # lines 0-3
add_polygon(sketch19, [(346, -83), (232, -83), (232, -118), (346, -118)])  # lines 4-7
sketch19.addConstraint([
    Sketcher.Constraint("Vertical", 0),
    Sketcher.Constraint("Horizontal", 1),
    Sketcher.Constraint("Vertical", 2),
    Sketcher.Constraint("Horizontal", 3),
    Sketcher.Constraint("Horizontal", 4),
    Sketcher.Constraint("Vertical", 5),
    Sketcher.Constraint("Horizontal", 6),
    Sketcher.Constraint("Vertical", 7),
    Sketcher.Constraint("DistanceX", -1, 1, 4, 2, 232.17),
    Sketcher.Constraint("DistanceY", 4, 2, -1, 1, 83.435),
    Sketcher.Constraint("DistanceX", 1, 1, 1, 2, 466.496249),
    Sketcher.Constraint("DistanceY", 5, 2, 5, 1, 34.550681),
    Sketcher.Constraint("DistanceX", 4, 2, 4, 1, 113.515173),
    Sketcher.Constraint("DistanceY", 0, 1, 0, 2, 203.631856),
    Sketcher.Constraint("DistanceY", 2, 2, -1, 1, 160.275531),
    Sketcher.Constraint("DistanceX", 6, 2, 2, 2, 92.107122),
])
pocket9 = body.newObject("PartDesign::Pocket", "Pocket008")
pocket9.Profile = sketch19
pocket9.Type = "ThroughAll"
pocket9.Reversed = True
doc.recompute()

chamfer = body.newObject("PartDesign::Chamfer", "Chamfer")
chamfer.Base = (pocket9, edges_at(pocket9, [(333.15, 8, -83.435), (232.17, 8, -111.42)]))
chamfer.Size = 5

# Sketch on XZ plane
sketch20 = body.newObject("Sketcher::SketchObject", "Sketch019")
sketch20.AttachmentSupport = (doc.getObject("XZ_Plane"), [""])
sketch20.MapMode = "FlatFace"
sketch20.AttachmentOffset = App.Placement(App.Vector(0, 0, -1.5), App.Rotation())
add_polygon(sketch20, [(287, -106), (287, -117), (329, -117), (329, -106)])  # lines 0-3
sketch20.addConstraint([
    Sketcher.Constraint("Vertical", 0),
    Sketcher.Constraint("Horizontal", 1),
    Sketcher.Constraint("Vertical", 2),
    Sketcher.Constraint("Horizontal", 3),
    Sketcher.Constraint("DistanceX", 1, 1, 1, 2, 42.0),
    Sketcher.Constraint("DistanceY", 0, 2, 0, 1, 10.9),
    Sketcher.Constraint("DistanceX", -1, 1, 0, 2, 286.95),
    Sketcher.Constraint("DistanceY", 0, 2, -1, 1, 116.87),
])
pad10 = body.newObject("PartDesign::Pad", "Pad009")
pad10.Profile = sketch20
pad10.Length = 1.5

doc.recompute()
